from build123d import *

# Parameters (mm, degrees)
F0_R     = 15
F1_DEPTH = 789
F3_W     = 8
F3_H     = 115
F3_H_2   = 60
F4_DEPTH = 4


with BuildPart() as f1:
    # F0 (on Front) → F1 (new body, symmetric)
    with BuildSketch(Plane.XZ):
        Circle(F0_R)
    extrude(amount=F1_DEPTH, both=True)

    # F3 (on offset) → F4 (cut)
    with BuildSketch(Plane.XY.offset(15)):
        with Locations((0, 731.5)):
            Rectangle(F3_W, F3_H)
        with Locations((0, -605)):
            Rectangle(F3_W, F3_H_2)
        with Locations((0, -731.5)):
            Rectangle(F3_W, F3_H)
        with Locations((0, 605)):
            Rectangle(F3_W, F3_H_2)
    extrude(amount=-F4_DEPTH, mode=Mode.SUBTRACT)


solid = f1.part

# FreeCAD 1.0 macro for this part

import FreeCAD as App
import Part
import Sketcher
Q = App.Units.Quantity


def add_polygon(sketch, points):
    """Adds a closed chain of lines whose ends are joined by coincident constraints."""
    first, n = sketch.GeometryCount, len(points)
    for a, b in zip(points, points[1:] + points[:1]):
        sketch.addGeometry(Part.LineSegment(App.Vector(*a, 0), App.Vector(*b, 0)), False)
    for i in range(n):
        sketch.addConstraint(Sketcher.Constraint("Coincident", first + i, 2, first + (i + 1) % n, 1))

doc = App.newDocument("Part")
params = doc.addObject("Spreadsheet::Sheet", "Params")
for row, (alias, value) in enumerate([
    ("sketch1_diameter", "30 mm"),
    ("pad1_length", "1578 mm"),
    ("sketch2_width", "8 mm"),
    ("sketch2_height", "115 mm"),
    ("sketch2_height2", "60 mm"),
    ("pocket1_length", "4 mm"),
], start=1):
    params.set(f"A{row}", alias)
    params.set(f"B{row}", "=" + value)
    params.setAlias(f"B{row}", alias)

body = doc.addObject("PartDesign::Body", "Body")

# Sketch on XZ plane
sketch1 = doc.addObject("Sketcher::SketchObject", "Sketch")
body.addObject(sketch1)
sketch1.AttachmentSupport = (doc.XZ_Plane, [""])
sketch1.MapMode = "FlatFace"
sketch1.addGeometry(Part.Circle(App.Vector(0, 0, 0), App.Vector(0, 0, 1), 15), False)
sketch1.addConstraint([
    Sketcher.Constraint("Coincident", 0, 3, -1, 1),
    Sketcher.Constraint("Diameter", 0, Q("30 mm")),
])
sketch1.setExpression("Constraints[1]", "Params.sketch1_diameter")
pad1 = doc.addObject("PartDesign::Pad", "Pad")
body.addObject(pad1)
pad1.Profile = sketch1
pad1.setExpression("Length", "Params.pad1_length")
pad1.Midplane = True

# Sketch on XY plane
sketch2 = doc.addObject("Sketcher::SketchObject", "Sketch001")
body.addObject(sketch2)
sketch2.AttachmentSupport = (doc.XY_Plane, [""])
sketch2.MapMode = "FlatFace"
sketch2.AttachmentOffset = App.Placement(App.Vector(0, 0, 15), App.Rotation())
add_polygon(sketch2, [(-4, 789), (-4, 674), (4, 674), (4, 789)])  # lines 0-3
add_polygon(sketch2, [(-4, -575), (-4, -635), (4, -635), (4, -575)])  # lines 4-7
add_polygon(sketch2, [(-4, -674), (-4, -789), (4, -789), (4, -674)])  # lines 8-11
add_polygon(sketch2, [(-4, 635), (-4, 575), (4, 575), (4, 635)])  # lines 12-15
sketch2.addConstraint([
    Sketcher.Constraint("Vertical", 0),
    Sketcher.Constraint("Horizontal", 1),
    Sketcher.Constraint("Vertical", 2),
    Sketcher.Constraint("Horizontal", 3),
    Sketcher.Constraint("Vertical", 4),
    Sketcher.Constraint("Horizontal", 5),
    Sketcher.Constraint("Vertical", 6),
    Sketcher.Constraint("Horizontal", 7),
    Sketcher.Constraint("Vertical", 8),
    Sketcher.Constraint("Horizontal", 9),
    Sketcher.Constraint("Vertical", 10),
    Sketcher.Constraint("Horizontal", 11),
    Sketcher.Constraint("Vertical", 12),
    Sketcher.Constraint("Horizontal", 13),
    Sketcher.Constraint("Vertical", 14),
    Sketcher.Constraint("Horizontal", 15),
    Sketcher.Constraint("Symmetric", 2, 2, 8, 2, -1, 1),
    Sketcher.Constraint("Symmetric", 0, 2, 10, 2, -1, 1),
    Sketcher.Constraint("Symmetric", 6, 2, 12, 2, -1, 1),
    Sketcher.Constraint("Symmetric", 4, 2, 14, 2, -1, 1),
    Sketcher.Constraint("Vertical", 3, 2, 4, 2),
    Sketcher.Constraint("Vertical", 2, 2, 5, 2),
    Sketcher.Constraint("Vertical", 7, 2, 8, 2),
    Sketcher.Constraint("DistanceX", 1, 1, 1, 2, Q("8 mm")),
    Sketcher.Constraint("DistanceY", 0, 2, 0, 1, Q("115 mm")),
    Sketcher.Constraint("DistanceY", 4, 2, 4, 1, Q("60 mm")),
    Sketcher.Constraint("DistanceY", -1, 1, 0, 2, Q("674 mm")),
    Sketcher.Constraint("DistanceY", 4, 2, -1, 1, Q("635 mm")),
])
sketch2.setExpression("Constraints[39]", "Params.sketch2_width")
sketch2.setExpression("Constraints[40]", "Params.sketch2_height")
sketch2.setExpression("Constraints[41]", "Params.sketch2_height2")
pocket1 = doc.addObject("PartDesign::Pocket", "Pocket")
body.addObject(pocket1)
pocket1.Profile = sketch2
pocket1.setExpression("Length", "Params.pocket1_length")

doc.recompute()
